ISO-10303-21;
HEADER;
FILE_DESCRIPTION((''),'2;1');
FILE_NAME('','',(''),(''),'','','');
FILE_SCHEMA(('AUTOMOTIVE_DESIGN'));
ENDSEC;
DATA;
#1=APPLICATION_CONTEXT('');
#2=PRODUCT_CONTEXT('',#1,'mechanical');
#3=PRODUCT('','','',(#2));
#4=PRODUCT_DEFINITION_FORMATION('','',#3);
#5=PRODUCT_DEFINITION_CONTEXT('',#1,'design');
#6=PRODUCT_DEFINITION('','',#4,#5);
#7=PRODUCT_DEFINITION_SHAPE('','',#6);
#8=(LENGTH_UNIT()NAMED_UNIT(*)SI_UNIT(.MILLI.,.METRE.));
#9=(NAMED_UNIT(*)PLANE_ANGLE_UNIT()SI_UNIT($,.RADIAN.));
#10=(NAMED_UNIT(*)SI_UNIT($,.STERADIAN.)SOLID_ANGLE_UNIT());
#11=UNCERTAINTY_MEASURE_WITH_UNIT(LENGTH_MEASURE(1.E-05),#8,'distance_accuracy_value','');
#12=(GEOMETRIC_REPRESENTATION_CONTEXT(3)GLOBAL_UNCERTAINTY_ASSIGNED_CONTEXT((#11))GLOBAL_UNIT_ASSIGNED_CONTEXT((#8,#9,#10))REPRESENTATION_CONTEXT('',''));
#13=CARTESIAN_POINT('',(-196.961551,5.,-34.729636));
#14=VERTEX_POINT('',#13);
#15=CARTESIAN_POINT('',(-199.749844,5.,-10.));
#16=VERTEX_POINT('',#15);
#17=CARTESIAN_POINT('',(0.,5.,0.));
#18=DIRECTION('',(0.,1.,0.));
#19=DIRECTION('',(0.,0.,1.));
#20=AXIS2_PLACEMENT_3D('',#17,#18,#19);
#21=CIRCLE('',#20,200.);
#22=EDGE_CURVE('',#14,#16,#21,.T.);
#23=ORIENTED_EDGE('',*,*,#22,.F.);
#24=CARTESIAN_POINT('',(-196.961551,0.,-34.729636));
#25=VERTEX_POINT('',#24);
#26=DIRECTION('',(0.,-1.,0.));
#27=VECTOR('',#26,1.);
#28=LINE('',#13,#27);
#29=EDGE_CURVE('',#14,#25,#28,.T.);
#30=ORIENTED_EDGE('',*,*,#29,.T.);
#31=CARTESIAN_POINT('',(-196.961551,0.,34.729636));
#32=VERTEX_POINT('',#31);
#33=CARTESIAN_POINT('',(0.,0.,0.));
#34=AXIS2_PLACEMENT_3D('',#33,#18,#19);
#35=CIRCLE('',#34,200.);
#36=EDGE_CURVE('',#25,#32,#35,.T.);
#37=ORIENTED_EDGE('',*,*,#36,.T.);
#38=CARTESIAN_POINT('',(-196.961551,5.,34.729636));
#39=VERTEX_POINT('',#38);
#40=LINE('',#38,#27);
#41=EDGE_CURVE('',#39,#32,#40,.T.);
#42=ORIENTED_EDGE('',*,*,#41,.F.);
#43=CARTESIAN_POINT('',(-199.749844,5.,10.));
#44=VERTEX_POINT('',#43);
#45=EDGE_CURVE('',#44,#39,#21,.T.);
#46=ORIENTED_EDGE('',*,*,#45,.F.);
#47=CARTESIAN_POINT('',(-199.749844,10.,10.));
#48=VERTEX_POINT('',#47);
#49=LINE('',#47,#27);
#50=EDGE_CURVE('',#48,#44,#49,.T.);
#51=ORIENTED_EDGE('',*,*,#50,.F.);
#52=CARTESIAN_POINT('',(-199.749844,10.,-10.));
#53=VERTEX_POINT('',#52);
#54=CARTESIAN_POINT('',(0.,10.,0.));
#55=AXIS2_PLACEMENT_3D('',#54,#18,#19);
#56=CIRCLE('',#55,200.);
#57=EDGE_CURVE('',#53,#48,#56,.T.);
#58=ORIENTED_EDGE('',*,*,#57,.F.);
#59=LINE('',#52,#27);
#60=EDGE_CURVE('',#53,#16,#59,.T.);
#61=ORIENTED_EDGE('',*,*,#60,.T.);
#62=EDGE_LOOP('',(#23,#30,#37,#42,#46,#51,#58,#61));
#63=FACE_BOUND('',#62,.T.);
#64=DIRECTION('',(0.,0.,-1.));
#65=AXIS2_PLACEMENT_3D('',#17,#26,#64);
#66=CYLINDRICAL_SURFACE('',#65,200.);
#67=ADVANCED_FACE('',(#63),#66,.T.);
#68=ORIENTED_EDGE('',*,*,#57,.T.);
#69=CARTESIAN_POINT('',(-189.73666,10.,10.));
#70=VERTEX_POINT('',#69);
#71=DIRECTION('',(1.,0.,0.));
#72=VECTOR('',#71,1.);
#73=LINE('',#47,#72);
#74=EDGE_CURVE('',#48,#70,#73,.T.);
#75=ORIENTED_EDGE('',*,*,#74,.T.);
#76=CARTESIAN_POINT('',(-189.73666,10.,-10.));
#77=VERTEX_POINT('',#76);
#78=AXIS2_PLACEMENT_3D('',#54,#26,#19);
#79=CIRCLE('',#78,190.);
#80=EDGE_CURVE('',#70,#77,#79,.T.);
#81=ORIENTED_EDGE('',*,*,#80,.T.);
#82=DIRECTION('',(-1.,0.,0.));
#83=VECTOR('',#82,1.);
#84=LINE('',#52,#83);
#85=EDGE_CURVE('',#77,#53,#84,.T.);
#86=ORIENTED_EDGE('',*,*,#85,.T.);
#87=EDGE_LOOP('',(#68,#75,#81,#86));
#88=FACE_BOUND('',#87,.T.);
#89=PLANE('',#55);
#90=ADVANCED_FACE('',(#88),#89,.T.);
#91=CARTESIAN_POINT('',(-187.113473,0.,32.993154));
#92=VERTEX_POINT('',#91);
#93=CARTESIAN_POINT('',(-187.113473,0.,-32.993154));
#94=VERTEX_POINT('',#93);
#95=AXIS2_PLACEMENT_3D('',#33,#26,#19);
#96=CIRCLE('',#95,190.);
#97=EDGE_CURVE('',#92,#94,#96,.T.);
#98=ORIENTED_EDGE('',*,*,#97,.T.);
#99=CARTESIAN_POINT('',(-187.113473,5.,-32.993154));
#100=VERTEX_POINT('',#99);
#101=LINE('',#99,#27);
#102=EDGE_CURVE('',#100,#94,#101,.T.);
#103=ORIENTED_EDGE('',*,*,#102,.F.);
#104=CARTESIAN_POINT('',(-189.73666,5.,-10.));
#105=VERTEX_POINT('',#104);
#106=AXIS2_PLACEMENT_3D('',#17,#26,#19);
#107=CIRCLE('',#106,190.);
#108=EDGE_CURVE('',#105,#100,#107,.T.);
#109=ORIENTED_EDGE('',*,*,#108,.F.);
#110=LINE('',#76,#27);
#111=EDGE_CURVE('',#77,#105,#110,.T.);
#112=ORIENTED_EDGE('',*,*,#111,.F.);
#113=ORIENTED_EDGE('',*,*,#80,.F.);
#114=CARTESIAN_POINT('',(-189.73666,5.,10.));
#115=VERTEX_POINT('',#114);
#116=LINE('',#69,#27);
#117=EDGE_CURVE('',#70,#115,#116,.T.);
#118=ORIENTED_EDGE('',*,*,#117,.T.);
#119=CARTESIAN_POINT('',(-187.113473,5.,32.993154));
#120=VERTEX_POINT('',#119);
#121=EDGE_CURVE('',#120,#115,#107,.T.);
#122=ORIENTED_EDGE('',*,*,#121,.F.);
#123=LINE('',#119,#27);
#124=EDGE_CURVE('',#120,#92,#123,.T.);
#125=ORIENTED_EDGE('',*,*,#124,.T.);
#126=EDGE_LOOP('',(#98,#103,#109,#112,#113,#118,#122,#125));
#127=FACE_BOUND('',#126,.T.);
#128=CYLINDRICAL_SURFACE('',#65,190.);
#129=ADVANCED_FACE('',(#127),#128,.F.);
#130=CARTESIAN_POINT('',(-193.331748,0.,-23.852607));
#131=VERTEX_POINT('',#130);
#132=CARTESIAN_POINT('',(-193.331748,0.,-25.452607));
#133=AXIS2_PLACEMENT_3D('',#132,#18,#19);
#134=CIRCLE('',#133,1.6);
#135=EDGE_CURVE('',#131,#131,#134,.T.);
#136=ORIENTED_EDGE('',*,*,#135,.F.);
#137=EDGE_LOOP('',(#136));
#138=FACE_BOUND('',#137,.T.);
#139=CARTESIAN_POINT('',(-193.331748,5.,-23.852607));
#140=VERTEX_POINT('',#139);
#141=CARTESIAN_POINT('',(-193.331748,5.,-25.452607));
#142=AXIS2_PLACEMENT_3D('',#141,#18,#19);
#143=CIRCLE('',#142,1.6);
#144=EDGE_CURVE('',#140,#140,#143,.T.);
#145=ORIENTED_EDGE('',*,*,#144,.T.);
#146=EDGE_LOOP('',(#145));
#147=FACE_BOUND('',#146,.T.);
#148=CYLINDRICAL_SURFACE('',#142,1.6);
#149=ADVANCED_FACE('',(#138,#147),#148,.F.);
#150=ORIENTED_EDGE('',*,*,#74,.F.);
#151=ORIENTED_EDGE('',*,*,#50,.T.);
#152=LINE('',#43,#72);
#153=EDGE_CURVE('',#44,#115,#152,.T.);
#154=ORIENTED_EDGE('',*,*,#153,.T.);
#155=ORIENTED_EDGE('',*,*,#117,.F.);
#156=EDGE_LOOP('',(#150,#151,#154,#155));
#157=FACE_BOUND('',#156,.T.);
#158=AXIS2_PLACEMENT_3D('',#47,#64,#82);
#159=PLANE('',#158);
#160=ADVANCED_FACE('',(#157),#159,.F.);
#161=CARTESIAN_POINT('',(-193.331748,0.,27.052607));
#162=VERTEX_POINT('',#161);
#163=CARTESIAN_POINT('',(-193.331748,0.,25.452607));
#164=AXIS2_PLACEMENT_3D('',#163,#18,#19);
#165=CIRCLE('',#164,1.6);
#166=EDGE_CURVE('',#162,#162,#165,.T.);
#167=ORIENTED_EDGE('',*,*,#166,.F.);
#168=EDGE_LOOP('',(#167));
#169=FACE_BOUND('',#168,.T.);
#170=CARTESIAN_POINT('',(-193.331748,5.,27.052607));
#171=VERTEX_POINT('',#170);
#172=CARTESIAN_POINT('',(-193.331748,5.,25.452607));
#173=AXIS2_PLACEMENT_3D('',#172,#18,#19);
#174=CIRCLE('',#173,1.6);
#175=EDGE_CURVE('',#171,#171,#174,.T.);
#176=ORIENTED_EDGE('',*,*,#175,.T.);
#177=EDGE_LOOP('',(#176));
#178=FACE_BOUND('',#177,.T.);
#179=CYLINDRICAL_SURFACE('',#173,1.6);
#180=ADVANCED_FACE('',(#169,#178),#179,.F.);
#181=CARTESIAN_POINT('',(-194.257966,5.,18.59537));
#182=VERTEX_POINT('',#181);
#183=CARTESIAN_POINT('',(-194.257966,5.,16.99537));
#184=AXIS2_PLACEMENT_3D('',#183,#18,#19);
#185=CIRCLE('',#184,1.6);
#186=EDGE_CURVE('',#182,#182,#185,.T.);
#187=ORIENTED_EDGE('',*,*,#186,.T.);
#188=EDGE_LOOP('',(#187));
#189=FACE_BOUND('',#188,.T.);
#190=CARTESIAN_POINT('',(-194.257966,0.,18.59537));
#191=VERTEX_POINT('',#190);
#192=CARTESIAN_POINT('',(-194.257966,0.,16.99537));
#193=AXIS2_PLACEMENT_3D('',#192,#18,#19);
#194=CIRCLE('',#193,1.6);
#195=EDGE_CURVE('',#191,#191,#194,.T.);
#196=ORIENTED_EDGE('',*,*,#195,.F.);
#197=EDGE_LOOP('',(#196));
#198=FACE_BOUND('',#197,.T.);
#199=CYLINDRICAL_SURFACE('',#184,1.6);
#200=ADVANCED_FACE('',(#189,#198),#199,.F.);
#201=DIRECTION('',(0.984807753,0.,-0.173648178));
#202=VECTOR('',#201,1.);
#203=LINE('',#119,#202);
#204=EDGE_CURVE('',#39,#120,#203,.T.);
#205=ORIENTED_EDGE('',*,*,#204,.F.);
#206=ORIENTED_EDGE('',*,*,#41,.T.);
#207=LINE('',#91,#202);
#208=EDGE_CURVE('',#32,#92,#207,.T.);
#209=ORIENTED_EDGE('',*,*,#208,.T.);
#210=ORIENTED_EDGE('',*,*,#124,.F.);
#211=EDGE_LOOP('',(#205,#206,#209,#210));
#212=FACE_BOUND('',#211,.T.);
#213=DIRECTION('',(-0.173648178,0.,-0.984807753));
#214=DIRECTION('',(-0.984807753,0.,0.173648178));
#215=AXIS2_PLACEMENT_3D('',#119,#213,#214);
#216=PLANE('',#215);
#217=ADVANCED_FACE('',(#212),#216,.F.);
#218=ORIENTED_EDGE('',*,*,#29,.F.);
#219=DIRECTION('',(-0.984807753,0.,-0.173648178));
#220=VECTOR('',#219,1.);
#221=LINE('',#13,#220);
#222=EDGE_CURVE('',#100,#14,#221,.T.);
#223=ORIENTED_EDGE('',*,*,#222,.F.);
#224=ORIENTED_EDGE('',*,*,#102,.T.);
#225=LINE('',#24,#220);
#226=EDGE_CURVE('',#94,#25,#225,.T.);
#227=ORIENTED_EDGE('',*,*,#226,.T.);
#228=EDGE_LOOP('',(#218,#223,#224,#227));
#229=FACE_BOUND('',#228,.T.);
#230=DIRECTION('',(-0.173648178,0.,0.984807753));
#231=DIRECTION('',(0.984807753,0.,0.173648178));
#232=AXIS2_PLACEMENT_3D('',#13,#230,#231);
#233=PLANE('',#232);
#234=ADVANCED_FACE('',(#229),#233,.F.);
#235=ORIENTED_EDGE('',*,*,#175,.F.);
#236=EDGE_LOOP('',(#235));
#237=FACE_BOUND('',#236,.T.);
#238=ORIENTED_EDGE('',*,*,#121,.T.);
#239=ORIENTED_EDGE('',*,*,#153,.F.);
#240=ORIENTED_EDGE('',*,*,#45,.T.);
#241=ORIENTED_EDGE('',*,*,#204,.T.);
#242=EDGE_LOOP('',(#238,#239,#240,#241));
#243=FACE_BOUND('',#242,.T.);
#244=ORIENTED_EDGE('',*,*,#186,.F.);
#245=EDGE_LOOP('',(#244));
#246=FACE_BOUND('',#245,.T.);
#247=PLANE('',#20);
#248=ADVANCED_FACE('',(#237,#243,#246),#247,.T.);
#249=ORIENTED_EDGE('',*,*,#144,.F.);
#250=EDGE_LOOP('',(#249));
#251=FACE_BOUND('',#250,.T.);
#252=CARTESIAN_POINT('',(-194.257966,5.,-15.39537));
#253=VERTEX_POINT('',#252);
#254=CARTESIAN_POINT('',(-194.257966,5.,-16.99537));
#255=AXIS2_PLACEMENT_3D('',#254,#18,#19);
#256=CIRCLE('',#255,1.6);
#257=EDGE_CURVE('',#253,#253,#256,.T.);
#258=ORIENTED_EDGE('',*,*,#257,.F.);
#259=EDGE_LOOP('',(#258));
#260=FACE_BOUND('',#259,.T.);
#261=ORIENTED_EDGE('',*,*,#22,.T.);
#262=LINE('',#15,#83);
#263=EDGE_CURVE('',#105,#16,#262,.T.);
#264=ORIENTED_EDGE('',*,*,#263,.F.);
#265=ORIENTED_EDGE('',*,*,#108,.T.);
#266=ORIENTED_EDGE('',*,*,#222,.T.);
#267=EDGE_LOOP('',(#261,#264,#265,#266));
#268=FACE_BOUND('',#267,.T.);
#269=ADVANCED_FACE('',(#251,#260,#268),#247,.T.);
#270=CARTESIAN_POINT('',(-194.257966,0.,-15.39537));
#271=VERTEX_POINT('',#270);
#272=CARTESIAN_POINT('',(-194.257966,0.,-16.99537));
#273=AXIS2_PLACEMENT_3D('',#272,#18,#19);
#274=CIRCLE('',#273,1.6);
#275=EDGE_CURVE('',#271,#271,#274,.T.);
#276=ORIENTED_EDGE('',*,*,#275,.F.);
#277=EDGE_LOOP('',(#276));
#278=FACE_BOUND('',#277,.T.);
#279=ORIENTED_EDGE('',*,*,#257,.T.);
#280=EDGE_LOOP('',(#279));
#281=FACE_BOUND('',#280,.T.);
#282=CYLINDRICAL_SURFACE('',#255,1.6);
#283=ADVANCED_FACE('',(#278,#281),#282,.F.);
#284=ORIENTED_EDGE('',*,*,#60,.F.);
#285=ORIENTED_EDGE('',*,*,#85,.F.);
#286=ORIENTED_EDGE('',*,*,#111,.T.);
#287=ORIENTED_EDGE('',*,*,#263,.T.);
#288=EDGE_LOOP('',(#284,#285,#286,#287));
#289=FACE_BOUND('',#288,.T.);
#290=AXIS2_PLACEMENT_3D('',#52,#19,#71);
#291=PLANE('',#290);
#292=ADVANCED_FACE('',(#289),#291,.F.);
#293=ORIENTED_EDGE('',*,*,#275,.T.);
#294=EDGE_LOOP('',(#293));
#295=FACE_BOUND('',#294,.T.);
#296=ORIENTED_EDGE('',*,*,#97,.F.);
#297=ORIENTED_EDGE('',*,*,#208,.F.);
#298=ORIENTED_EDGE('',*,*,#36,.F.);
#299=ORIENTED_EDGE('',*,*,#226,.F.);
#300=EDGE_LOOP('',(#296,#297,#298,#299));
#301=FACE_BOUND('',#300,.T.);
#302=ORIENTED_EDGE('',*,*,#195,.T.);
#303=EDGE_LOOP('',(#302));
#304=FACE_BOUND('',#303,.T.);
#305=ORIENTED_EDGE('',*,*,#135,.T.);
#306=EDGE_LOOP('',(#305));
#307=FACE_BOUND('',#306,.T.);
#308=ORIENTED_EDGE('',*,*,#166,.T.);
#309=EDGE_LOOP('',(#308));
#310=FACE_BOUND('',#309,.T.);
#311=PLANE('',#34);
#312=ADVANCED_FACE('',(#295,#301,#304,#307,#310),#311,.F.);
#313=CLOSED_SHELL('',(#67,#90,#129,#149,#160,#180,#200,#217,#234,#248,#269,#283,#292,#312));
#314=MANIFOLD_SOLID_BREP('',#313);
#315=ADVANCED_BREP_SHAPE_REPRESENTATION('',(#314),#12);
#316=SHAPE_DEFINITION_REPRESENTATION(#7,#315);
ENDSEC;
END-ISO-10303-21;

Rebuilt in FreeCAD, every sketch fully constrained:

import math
import FreeCAD as App
import Part
import Sketcher
Q = App.Units.Quantity

doc = App.newDocument("Part")
body = doc.addObject("PartDesign::Body", "Body")

sketch1 = body.newObject("Sketcher::SketchObject", "Sketch")
sketch1.AttachmentSupport = (doc.getObject("XZ_Plane"), [""])
sketch1.MapMode = "FlatFace"
sketch1.addGeometry([
    Part.LineSegment(App.Vector(-187, -33, 0), App.Vector(-197, -35, 0)),
    Part.ArcOfCircle(Part.Circle(App.Vector(0, 0, 0), App.Vector(0, 0, 1), 200), math.radians(170), math.radians(190)),
    Part.LineSegment(App.Vector(-197, 35, 0), App.Vector(-187, 33, 0)),
    Part.ArcOfCircle(Part.Circle(App.Vector(0, 0, 0), App.Vector(0, 0, 1), 190), math.radians(170), math.radians(190)),
], False)
sketch1.addConstraint([
    Sketcher.Constraint("Coincident", 0, 2, 1, 2),
    Sketcher.Constraint("Coincident", 1, 1, 2, 1),
    Sketcher.Constraint("Coincident", 2, 2, 3, 1),
    Sketcher.Constraint("Coincident", 3, 2, 0, 1),
    Sketcher.Constraint("Coincident", 1, 3, -1, 1),
    Sketcher.Constraint("Coincident", 3, 3, -1, 1),
    Sketcher.Constraint("Vertical", 0, 2, 1, 1),
    Sketcher.Constraint("Vertical", 2, 2, 3, 2),
    Sketcher.Constraint("Radius", 1, 200.0),
    Sketcher.Constraint("Radius", 3, 190.0),
    Sketcher.Constraint("Angle", 0, Q("-170 deg")),
    Sketcher.Constraint("DistanceX", 0, 2, -1, 1, 196.961551),
])
pad1 = body.newObject("PartDesign::Pad", "Pad")
pad1.Profile = sketch1
pad1.Length = 5
pad1.Reversed = True

sketch2 = body.newObject("Sketcher::SketchObject", "Sketch001")
sketch2.AttachmentSupport = (doc.getObject("XZ_Plane"), [""])
sketch2.MapMode = "FlatFace"
sketch2.AttachmentOffset = App.Placement(App.Vector(0, 0, -5), App.Rotation())
sketch2.addGeometry([
    Part.LineSegment(App.Vector(-190, -10, 0), App.Vector(-200, -10, 0)),
    Part.ArcOfCircle(Part.Circle(App.Vector(0, 0, 0), App.Vector(0, 0, 1), 200), math.radians(177.13), math.radians(182.87)),
    Part.LineSegment(App.Vector(-200, 10, 0), App.Vector(-190, 10, 0)),
    Part.ArcOfCircle(Part.Circle(App.Vector(0, 0, 0), App.Vector(0, 0, 1), 190), math.radians(176.98), math.radians(183.02)),
], False)
sketch2.addConstraint([
    Sketcher.Constraint("Coincident", 0, 2, 1, 2),
    Sketcher.Constraint("Coincident", 1, 1, 2, 1),
    Sketcher.Constraint("Coincident", 2, 2, 3, 1),
    Sketcher.Constraint("Coincident", 3, 2, 0, 1),
    Sketcher.Constraint("Horizontal", 0),
    Sketcher.Constraint("Horizontal", 2),
    Sketcher.Constraint("Coincident", 1, 3, -1, 1),
    Sketcher.Constraint("Coincident", 3, 3, -1, 1),
    Sketcher.Constraint("Vertical", 0, 2, 1, 1),
    Sketcher.Constraint("Radius", 1, 200.0),
    Sketcher.Constraint("Radius", 3, 190.0),
    Sketcher.Constraint("DistanceY", 0, 2, -1, 1, 10.0),
])
pad2 = body.newObject("PartDesign::Pad", "Pad001")
pad2.Profile = sketch2
pad2.Length = 5
pad2.Reversed = True

sketch3 = body.newObject("Sketcher::SketchObject", "Sketch002")
sketch3.AttachmentSupport = (doc.getObject("XZ_Plane"), [""])
sketch3.MapMode = "FlatFace"
sketch3.AttachmentOffset = App.Placement(App.Vector(0, 0, -5), App.Rotation())
sketch3.addGeometry([
    Part.Circle(App.Vector(-194.3, -17, 0), App.Vector(0, 0, 1), 1.6),
    Part.Circle(App.Vector(-193.3, -25.5, 0), App.Vector(0, 0, 1), 1.6),
    Part.Circle(App.Vector(-194.3, 17, 0), App.Vector(0, 0, 1), 1.6),
    Part.Circle(App.Vector(-193.3, 25.5, 0), App.Vector(0, 0, 1), 1.6),
], False)
sketch3.addConstraint([
    Sketcher.Constraint("Equal", 0, 1),
    Sketcher.Constraint("Equal", 1, 2),
    Sketcher.Constraint("Equal", 2, 3),
    Sketcher.Constraint("Symmetric", 0, 3, 2, 3, -1),
    Sketcher.Constraint("Symmetric", 1, 3, 3, 3, -1),
    Sketcher.Constraint("Diameter", 0, 3.2),
    Sketcher.Constraint("DistanceY", 0, 3, -1, 1, 16.99537),
    Sketcher.Constraint("DistanceX", 0, 3, 1, 3, 0.926218),
    Sketcher.Constraint("DistanceX", 0, 3, -1, 1, 194.257966),
    Sketcher.Constraint("DistanceY", 1, 3, -1, 1, 25.452607),
])
doc.recompute()
hole = body.newObject("PartDesign::Hole", "Hole")
hole.Profile = sketch3
hole.ThreadType = "None"
hole.Diameter = 3.2
hole.DepthType = "ThroughAll"
hole.Reversed = True

doc.recompute()
